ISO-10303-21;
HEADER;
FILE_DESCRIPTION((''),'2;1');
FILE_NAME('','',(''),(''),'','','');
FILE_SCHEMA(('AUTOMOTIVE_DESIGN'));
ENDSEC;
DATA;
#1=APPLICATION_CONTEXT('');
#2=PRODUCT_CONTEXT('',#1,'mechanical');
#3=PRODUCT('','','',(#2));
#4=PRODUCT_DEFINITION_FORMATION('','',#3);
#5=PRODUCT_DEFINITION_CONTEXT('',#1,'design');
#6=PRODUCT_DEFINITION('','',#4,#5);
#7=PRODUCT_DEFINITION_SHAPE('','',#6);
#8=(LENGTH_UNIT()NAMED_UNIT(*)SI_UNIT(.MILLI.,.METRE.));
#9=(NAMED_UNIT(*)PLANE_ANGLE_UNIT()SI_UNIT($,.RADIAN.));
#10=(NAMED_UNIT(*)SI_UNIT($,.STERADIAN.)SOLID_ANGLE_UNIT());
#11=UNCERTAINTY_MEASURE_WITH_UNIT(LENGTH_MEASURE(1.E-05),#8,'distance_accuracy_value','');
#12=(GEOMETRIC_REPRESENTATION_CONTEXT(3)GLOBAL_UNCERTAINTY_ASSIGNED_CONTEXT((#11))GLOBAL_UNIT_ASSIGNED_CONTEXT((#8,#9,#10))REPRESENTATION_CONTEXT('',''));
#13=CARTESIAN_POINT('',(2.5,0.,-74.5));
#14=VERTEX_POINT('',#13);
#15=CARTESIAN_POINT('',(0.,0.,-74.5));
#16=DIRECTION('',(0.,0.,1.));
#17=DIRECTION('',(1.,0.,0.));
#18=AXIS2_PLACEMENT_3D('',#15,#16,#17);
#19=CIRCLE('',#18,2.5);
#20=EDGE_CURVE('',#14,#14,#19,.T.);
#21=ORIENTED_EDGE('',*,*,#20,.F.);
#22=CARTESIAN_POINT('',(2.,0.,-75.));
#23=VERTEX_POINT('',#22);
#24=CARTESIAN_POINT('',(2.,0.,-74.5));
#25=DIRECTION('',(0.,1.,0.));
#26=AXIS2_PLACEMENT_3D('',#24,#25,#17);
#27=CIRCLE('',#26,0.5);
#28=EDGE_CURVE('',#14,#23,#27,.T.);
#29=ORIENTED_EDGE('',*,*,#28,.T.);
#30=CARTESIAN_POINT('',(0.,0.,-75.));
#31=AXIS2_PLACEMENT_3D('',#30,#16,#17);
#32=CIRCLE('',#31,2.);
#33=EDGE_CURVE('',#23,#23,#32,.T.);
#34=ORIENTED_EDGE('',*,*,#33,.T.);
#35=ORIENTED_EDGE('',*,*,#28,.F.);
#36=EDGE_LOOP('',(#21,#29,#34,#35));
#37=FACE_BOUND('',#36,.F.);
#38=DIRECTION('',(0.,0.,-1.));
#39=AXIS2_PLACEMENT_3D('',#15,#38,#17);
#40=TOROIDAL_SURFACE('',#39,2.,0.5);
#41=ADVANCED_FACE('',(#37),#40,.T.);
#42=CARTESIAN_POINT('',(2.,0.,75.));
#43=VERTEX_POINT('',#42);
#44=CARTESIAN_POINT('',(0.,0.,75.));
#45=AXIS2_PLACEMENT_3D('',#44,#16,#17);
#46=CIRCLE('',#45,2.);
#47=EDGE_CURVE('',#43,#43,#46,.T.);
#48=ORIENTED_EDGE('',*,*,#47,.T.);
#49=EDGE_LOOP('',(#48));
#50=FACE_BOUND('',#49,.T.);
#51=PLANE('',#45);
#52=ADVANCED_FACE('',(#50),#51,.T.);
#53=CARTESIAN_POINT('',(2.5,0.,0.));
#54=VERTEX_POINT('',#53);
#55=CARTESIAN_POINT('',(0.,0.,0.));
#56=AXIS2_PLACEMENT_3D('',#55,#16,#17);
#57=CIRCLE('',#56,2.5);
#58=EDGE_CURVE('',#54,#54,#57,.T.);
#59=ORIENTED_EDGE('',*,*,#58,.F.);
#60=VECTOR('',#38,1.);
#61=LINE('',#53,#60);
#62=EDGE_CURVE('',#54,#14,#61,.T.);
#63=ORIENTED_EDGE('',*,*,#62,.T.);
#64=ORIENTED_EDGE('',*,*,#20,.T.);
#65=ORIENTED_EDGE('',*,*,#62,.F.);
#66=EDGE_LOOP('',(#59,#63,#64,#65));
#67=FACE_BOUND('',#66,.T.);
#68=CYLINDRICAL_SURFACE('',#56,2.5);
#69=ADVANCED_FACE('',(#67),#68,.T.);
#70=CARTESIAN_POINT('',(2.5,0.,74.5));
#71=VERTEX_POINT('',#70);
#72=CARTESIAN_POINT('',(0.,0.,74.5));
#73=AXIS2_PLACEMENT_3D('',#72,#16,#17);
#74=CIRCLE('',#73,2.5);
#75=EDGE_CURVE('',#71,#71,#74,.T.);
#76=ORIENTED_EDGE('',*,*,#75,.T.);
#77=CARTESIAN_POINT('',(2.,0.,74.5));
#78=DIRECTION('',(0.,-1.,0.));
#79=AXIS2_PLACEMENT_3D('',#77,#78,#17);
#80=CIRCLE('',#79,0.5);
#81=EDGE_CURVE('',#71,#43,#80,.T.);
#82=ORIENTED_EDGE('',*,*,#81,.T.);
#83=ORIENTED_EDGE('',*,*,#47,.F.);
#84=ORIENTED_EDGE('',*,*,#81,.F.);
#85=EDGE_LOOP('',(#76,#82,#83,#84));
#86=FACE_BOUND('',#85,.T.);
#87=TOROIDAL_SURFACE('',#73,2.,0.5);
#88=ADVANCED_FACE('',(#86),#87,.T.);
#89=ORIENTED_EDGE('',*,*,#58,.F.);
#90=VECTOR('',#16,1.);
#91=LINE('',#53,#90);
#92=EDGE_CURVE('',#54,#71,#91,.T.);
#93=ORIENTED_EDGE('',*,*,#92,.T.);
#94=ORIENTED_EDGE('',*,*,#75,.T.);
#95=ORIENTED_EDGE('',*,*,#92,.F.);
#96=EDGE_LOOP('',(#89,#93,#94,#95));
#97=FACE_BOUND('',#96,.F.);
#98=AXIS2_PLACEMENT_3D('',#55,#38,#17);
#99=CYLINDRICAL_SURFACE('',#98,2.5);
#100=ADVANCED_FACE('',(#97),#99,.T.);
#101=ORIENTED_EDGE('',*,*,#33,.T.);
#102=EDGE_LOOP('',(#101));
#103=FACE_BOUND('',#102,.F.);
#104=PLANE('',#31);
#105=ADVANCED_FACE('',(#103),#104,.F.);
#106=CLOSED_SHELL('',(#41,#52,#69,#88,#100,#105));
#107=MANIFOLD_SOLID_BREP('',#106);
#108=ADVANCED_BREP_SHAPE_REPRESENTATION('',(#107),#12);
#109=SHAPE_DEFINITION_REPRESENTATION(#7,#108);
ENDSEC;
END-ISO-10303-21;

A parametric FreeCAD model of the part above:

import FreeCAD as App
import Part
import Sketcher
Q = App.Units.Quantity


def edges_at(feature, points):
    """Names of the edges that pass closest to the given points."""
    edges = feature.Shape.Edges
    near = lambda p: min(range(len(edges)), key=lambda i: edges[i].distToShape(Part.Vertex(*p))[0])
    return sorted({f"Edge{near(p) + 1}" for p in points})

doc = App.newDocument("Part")
body = doc.addObject("PartDesign::Body", "Body")

sketch1 = doc.addObject("Sketcher::SketchObject", "Sketch")
body.addObject(sketch1)
sketch1.AttachmentSupport = (doc.XY_Plane, [""])
sketch1.MapMode = "FlatFace"
sketch1.addGeometry(Part.Circle(App.Vector(0, 0, 0), App.Vector(0, 0, 1), 2.5), False)
sketch1.addConstraint([
    Sketcher.Constraint("Coincident", 0, 3, -1, 1),
    Sketcher.Constraint("Diameter", 0, Q("5 mm")),
])
pad1 = doc.addObject("PartDesign::Pad", "Pad")
body.addObject(pad1)
pad1.Profile = sketch1
pad1.Length = 150
pad1.Midplane = True
doc.recompute()

fillet = doc.addObject("PartDesign::Fillet", "Fillet")
body.addObject(fillet)
fillet.Base = (pad1, edges_at(pad1, [(-2.5, 0, -75), (-2.5, 0, 75)]))
fillet.Radius = 0.5

doc.recompute()
